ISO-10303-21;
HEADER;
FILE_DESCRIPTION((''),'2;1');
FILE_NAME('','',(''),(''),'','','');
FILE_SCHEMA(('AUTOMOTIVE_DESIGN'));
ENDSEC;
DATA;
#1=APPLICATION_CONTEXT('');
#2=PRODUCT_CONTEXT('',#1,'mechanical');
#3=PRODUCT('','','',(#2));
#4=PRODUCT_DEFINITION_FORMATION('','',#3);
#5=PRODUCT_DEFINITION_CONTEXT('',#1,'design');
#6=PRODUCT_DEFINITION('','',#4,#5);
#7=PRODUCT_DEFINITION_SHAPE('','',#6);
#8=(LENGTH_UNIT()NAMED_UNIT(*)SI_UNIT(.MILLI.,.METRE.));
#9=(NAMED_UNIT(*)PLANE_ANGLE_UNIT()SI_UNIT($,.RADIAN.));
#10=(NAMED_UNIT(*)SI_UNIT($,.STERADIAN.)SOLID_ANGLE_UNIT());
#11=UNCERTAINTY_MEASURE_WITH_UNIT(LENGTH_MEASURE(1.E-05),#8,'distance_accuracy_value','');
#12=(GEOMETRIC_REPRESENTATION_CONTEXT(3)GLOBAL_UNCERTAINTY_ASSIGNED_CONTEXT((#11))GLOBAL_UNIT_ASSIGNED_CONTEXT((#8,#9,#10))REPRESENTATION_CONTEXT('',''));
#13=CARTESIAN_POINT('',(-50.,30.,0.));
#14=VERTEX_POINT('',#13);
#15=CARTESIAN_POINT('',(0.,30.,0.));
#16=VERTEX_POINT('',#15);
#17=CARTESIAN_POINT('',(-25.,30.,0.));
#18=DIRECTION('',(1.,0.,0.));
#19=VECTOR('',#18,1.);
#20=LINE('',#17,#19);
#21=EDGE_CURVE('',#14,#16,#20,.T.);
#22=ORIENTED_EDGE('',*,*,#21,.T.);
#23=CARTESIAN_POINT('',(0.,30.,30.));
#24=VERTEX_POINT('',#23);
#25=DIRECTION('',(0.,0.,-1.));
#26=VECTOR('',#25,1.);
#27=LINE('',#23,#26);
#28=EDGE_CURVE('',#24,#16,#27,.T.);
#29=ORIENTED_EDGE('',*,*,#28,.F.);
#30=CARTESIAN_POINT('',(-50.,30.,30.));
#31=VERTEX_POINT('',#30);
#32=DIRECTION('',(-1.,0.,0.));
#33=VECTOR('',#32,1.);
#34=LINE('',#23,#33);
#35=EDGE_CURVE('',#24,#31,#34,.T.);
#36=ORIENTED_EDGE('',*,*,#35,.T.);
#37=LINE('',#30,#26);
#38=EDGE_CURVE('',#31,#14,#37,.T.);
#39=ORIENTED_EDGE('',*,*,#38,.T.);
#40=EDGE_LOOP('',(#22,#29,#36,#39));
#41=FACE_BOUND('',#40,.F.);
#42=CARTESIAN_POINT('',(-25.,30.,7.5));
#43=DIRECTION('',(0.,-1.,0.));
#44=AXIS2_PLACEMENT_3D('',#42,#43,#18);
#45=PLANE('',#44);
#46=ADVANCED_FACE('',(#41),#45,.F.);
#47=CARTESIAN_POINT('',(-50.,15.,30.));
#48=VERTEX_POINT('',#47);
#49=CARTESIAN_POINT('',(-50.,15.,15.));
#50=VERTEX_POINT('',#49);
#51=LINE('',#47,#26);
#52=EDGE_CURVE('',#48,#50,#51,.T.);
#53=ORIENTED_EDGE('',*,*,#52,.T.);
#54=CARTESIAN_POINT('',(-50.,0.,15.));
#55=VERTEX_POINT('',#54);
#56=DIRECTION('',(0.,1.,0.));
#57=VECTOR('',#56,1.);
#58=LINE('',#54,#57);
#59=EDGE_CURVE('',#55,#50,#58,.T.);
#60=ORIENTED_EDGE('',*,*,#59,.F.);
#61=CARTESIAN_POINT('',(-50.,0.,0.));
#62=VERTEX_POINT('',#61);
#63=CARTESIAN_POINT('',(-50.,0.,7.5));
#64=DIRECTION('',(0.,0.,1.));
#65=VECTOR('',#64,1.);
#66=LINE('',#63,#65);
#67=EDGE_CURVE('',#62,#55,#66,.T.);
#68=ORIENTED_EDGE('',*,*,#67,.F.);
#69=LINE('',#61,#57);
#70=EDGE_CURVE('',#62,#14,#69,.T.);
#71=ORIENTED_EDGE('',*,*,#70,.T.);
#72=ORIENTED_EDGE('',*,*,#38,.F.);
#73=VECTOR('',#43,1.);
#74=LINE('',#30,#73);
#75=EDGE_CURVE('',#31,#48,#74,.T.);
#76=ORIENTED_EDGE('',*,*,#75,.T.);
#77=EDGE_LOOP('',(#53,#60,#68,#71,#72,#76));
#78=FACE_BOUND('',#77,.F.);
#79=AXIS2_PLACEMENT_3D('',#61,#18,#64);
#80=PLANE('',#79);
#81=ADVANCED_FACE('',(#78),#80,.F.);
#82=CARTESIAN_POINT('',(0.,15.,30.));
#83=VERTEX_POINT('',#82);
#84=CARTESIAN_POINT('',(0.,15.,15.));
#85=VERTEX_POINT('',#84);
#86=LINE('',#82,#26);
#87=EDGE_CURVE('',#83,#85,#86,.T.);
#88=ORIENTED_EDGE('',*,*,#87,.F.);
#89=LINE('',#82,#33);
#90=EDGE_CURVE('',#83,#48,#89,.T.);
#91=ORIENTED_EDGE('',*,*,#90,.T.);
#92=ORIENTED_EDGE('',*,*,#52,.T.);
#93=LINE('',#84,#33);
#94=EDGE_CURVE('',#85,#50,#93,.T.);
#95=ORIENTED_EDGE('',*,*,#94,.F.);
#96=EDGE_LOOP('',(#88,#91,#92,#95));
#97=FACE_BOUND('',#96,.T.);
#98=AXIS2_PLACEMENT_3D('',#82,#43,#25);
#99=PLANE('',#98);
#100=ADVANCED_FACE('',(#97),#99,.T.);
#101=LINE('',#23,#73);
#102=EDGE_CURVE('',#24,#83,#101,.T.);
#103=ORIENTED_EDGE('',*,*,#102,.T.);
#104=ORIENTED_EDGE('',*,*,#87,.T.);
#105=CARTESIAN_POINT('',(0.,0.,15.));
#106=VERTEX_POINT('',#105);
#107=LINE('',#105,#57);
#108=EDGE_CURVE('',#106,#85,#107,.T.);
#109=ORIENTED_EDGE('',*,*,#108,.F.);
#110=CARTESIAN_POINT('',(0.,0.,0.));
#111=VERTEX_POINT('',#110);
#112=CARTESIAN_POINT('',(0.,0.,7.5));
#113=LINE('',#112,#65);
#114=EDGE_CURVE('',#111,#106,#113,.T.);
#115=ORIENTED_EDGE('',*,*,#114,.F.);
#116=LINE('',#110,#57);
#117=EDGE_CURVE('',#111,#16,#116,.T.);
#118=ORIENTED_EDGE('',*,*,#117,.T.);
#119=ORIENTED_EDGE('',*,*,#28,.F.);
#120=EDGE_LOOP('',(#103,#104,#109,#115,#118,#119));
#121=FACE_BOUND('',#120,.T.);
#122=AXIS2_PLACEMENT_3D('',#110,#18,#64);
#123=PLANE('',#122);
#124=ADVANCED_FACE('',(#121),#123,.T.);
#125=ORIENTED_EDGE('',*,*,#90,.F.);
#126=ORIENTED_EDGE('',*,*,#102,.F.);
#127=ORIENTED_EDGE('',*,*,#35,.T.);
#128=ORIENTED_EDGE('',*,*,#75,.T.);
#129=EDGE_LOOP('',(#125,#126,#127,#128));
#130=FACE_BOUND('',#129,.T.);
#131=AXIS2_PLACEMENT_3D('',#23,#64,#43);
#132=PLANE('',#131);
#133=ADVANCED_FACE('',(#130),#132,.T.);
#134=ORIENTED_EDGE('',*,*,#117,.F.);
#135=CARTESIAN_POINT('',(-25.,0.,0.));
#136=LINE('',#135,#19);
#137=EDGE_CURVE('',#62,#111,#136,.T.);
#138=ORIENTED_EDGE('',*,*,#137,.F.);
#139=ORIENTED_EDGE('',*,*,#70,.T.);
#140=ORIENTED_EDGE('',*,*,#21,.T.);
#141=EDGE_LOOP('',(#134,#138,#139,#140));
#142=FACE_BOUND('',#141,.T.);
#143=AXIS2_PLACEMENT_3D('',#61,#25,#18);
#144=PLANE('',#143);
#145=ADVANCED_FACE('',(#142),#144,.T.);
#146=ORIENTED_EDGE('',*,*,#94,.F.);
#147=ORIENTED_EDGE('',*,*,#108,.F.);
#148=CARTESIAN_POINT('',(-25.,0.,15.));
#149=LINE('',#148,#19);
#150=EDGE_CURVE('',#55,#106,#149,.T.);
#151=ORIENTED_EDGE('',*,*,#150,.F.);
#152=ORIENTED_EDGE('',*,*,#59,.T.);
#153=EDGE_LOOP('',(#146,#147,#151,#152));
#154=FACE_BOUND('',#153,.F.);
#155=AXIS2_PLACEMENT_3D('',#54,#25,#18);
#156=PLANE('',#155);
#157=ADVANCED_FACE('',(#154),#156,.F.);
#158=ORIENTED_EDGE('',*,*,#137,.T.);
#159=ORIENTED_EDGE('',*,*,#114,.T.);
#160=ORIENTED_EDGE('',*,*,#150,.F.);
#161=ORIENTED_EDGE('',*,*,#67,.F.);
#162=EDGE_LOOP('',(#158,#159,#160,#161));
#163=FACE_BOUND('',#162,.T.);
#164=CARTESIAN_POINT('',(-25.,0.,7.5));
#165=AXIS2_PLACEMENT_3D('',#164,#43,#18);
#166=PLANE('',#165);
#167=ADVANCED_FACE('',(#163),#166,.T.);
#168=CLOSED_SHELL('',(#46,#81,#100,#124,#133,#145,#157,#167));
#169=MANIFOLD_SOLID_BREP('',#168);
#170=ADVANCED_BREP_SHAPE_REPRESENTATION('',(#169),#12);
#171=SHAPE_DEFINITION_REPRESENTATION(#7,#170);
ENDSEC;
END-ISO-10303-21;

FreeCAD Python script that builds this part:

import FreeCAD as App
import Part
import Sketcher
from FreeCAD import Vector
Q = App.Units.Quantity


def add_polygon(sketch, points):
    """Adds a closed chain of lines whose ends are joined by coincident constraints."""
    first, n = sketch.GeometryCount, len(points)
    for a, b in zip(points, points[1:] + points[:1]):
        sketch.addGeometry(Part.LineSegment(App.Vector(*a, 0), App.Vector(*b, 0)), False)
    for i in range(n):
        sketch.addConstraint(Sketcher.Constraint("Coincident", first + i, 2, first + (i + 1) % n, 1))

doc = App.newDocument("Part")
body = doc.addObject("PartDesign::Body", "Body")

sketch1 = body.newObject("Sketcher::SketchObject", "Sketch")
sketch1.AttachmentSupport = (doc.getObject("XZ_Plane"), [""])
sketch1.MapMode = "FlatFace"
add_polygon(sketch1, [(-50, 15), (-50, 0), (0, 0), (0, 15)])
sketch1.addConstraint([
    Sketcher.Constraint("Vertical", 0),
    Sketcher.Constraint("Horizontal", 1),
    Sketcher.Constraint("Vertical", 2),
    Sketcher.Constraint("Horizontal", 3),
    Sketcher.Constraint("Coincident", 1, 2, -1, 1),
    Sketcher.Constraint("DistanceX", 1, 1, 1, 2, Q("50 mm")),
    Sketcher.Constraint("DistanceY", 0, 2, 0, 1, Q("15 mm")),
])
pad1 = body.newObject("PartDesign::Pad", "Pad")
pad1.Profile = sketch1
pad1.Length = 30
pad1.Reversed = True

sketch2 = body.newObject("Sketcher::SketchObject", "Sketch001")
sketch2.AttachmentSupport = (doc.getObject("YZ_Plane"), [""])
sketch2.MapMode = "FlatFace"
add_polygon(sketch2, [(15, 15), (0, 15), (0, 0), (30, 0), (30, 30), (15, 30)])
sketch2.addConstraint([
    Sketcher.Constraint("Horizontal", 0),
    Sketcher.Constraint("Vertical", 1),
    Sketcher.Constraint("Horizontal", 2),
    Sketcher.Constraint("Vertical", 3),
    Sketcher.Constraint("Horizontal", 4),
    Sketcher.Constraint("Vertical", 5),
    Sketcher.Constraint("Coincident", 1, 2, -1, 1),
    Sketcher.Constraint("Equal", 0, 4),
    Sketcher.Constraint("Equal", 4, 1),
    Sketcher.Constraint("Equal", 2, 3),
    Sketcher.Constraint("DistanceX", 0, 2, 0, 1, Q("15 mm")),
])
pad2 = body.newObject("PartDesign::Pad", "Pad001")
pad2.Profile = sketch2
pad2.Length = 50
pad2.Reversed = True

doc.recompute()
